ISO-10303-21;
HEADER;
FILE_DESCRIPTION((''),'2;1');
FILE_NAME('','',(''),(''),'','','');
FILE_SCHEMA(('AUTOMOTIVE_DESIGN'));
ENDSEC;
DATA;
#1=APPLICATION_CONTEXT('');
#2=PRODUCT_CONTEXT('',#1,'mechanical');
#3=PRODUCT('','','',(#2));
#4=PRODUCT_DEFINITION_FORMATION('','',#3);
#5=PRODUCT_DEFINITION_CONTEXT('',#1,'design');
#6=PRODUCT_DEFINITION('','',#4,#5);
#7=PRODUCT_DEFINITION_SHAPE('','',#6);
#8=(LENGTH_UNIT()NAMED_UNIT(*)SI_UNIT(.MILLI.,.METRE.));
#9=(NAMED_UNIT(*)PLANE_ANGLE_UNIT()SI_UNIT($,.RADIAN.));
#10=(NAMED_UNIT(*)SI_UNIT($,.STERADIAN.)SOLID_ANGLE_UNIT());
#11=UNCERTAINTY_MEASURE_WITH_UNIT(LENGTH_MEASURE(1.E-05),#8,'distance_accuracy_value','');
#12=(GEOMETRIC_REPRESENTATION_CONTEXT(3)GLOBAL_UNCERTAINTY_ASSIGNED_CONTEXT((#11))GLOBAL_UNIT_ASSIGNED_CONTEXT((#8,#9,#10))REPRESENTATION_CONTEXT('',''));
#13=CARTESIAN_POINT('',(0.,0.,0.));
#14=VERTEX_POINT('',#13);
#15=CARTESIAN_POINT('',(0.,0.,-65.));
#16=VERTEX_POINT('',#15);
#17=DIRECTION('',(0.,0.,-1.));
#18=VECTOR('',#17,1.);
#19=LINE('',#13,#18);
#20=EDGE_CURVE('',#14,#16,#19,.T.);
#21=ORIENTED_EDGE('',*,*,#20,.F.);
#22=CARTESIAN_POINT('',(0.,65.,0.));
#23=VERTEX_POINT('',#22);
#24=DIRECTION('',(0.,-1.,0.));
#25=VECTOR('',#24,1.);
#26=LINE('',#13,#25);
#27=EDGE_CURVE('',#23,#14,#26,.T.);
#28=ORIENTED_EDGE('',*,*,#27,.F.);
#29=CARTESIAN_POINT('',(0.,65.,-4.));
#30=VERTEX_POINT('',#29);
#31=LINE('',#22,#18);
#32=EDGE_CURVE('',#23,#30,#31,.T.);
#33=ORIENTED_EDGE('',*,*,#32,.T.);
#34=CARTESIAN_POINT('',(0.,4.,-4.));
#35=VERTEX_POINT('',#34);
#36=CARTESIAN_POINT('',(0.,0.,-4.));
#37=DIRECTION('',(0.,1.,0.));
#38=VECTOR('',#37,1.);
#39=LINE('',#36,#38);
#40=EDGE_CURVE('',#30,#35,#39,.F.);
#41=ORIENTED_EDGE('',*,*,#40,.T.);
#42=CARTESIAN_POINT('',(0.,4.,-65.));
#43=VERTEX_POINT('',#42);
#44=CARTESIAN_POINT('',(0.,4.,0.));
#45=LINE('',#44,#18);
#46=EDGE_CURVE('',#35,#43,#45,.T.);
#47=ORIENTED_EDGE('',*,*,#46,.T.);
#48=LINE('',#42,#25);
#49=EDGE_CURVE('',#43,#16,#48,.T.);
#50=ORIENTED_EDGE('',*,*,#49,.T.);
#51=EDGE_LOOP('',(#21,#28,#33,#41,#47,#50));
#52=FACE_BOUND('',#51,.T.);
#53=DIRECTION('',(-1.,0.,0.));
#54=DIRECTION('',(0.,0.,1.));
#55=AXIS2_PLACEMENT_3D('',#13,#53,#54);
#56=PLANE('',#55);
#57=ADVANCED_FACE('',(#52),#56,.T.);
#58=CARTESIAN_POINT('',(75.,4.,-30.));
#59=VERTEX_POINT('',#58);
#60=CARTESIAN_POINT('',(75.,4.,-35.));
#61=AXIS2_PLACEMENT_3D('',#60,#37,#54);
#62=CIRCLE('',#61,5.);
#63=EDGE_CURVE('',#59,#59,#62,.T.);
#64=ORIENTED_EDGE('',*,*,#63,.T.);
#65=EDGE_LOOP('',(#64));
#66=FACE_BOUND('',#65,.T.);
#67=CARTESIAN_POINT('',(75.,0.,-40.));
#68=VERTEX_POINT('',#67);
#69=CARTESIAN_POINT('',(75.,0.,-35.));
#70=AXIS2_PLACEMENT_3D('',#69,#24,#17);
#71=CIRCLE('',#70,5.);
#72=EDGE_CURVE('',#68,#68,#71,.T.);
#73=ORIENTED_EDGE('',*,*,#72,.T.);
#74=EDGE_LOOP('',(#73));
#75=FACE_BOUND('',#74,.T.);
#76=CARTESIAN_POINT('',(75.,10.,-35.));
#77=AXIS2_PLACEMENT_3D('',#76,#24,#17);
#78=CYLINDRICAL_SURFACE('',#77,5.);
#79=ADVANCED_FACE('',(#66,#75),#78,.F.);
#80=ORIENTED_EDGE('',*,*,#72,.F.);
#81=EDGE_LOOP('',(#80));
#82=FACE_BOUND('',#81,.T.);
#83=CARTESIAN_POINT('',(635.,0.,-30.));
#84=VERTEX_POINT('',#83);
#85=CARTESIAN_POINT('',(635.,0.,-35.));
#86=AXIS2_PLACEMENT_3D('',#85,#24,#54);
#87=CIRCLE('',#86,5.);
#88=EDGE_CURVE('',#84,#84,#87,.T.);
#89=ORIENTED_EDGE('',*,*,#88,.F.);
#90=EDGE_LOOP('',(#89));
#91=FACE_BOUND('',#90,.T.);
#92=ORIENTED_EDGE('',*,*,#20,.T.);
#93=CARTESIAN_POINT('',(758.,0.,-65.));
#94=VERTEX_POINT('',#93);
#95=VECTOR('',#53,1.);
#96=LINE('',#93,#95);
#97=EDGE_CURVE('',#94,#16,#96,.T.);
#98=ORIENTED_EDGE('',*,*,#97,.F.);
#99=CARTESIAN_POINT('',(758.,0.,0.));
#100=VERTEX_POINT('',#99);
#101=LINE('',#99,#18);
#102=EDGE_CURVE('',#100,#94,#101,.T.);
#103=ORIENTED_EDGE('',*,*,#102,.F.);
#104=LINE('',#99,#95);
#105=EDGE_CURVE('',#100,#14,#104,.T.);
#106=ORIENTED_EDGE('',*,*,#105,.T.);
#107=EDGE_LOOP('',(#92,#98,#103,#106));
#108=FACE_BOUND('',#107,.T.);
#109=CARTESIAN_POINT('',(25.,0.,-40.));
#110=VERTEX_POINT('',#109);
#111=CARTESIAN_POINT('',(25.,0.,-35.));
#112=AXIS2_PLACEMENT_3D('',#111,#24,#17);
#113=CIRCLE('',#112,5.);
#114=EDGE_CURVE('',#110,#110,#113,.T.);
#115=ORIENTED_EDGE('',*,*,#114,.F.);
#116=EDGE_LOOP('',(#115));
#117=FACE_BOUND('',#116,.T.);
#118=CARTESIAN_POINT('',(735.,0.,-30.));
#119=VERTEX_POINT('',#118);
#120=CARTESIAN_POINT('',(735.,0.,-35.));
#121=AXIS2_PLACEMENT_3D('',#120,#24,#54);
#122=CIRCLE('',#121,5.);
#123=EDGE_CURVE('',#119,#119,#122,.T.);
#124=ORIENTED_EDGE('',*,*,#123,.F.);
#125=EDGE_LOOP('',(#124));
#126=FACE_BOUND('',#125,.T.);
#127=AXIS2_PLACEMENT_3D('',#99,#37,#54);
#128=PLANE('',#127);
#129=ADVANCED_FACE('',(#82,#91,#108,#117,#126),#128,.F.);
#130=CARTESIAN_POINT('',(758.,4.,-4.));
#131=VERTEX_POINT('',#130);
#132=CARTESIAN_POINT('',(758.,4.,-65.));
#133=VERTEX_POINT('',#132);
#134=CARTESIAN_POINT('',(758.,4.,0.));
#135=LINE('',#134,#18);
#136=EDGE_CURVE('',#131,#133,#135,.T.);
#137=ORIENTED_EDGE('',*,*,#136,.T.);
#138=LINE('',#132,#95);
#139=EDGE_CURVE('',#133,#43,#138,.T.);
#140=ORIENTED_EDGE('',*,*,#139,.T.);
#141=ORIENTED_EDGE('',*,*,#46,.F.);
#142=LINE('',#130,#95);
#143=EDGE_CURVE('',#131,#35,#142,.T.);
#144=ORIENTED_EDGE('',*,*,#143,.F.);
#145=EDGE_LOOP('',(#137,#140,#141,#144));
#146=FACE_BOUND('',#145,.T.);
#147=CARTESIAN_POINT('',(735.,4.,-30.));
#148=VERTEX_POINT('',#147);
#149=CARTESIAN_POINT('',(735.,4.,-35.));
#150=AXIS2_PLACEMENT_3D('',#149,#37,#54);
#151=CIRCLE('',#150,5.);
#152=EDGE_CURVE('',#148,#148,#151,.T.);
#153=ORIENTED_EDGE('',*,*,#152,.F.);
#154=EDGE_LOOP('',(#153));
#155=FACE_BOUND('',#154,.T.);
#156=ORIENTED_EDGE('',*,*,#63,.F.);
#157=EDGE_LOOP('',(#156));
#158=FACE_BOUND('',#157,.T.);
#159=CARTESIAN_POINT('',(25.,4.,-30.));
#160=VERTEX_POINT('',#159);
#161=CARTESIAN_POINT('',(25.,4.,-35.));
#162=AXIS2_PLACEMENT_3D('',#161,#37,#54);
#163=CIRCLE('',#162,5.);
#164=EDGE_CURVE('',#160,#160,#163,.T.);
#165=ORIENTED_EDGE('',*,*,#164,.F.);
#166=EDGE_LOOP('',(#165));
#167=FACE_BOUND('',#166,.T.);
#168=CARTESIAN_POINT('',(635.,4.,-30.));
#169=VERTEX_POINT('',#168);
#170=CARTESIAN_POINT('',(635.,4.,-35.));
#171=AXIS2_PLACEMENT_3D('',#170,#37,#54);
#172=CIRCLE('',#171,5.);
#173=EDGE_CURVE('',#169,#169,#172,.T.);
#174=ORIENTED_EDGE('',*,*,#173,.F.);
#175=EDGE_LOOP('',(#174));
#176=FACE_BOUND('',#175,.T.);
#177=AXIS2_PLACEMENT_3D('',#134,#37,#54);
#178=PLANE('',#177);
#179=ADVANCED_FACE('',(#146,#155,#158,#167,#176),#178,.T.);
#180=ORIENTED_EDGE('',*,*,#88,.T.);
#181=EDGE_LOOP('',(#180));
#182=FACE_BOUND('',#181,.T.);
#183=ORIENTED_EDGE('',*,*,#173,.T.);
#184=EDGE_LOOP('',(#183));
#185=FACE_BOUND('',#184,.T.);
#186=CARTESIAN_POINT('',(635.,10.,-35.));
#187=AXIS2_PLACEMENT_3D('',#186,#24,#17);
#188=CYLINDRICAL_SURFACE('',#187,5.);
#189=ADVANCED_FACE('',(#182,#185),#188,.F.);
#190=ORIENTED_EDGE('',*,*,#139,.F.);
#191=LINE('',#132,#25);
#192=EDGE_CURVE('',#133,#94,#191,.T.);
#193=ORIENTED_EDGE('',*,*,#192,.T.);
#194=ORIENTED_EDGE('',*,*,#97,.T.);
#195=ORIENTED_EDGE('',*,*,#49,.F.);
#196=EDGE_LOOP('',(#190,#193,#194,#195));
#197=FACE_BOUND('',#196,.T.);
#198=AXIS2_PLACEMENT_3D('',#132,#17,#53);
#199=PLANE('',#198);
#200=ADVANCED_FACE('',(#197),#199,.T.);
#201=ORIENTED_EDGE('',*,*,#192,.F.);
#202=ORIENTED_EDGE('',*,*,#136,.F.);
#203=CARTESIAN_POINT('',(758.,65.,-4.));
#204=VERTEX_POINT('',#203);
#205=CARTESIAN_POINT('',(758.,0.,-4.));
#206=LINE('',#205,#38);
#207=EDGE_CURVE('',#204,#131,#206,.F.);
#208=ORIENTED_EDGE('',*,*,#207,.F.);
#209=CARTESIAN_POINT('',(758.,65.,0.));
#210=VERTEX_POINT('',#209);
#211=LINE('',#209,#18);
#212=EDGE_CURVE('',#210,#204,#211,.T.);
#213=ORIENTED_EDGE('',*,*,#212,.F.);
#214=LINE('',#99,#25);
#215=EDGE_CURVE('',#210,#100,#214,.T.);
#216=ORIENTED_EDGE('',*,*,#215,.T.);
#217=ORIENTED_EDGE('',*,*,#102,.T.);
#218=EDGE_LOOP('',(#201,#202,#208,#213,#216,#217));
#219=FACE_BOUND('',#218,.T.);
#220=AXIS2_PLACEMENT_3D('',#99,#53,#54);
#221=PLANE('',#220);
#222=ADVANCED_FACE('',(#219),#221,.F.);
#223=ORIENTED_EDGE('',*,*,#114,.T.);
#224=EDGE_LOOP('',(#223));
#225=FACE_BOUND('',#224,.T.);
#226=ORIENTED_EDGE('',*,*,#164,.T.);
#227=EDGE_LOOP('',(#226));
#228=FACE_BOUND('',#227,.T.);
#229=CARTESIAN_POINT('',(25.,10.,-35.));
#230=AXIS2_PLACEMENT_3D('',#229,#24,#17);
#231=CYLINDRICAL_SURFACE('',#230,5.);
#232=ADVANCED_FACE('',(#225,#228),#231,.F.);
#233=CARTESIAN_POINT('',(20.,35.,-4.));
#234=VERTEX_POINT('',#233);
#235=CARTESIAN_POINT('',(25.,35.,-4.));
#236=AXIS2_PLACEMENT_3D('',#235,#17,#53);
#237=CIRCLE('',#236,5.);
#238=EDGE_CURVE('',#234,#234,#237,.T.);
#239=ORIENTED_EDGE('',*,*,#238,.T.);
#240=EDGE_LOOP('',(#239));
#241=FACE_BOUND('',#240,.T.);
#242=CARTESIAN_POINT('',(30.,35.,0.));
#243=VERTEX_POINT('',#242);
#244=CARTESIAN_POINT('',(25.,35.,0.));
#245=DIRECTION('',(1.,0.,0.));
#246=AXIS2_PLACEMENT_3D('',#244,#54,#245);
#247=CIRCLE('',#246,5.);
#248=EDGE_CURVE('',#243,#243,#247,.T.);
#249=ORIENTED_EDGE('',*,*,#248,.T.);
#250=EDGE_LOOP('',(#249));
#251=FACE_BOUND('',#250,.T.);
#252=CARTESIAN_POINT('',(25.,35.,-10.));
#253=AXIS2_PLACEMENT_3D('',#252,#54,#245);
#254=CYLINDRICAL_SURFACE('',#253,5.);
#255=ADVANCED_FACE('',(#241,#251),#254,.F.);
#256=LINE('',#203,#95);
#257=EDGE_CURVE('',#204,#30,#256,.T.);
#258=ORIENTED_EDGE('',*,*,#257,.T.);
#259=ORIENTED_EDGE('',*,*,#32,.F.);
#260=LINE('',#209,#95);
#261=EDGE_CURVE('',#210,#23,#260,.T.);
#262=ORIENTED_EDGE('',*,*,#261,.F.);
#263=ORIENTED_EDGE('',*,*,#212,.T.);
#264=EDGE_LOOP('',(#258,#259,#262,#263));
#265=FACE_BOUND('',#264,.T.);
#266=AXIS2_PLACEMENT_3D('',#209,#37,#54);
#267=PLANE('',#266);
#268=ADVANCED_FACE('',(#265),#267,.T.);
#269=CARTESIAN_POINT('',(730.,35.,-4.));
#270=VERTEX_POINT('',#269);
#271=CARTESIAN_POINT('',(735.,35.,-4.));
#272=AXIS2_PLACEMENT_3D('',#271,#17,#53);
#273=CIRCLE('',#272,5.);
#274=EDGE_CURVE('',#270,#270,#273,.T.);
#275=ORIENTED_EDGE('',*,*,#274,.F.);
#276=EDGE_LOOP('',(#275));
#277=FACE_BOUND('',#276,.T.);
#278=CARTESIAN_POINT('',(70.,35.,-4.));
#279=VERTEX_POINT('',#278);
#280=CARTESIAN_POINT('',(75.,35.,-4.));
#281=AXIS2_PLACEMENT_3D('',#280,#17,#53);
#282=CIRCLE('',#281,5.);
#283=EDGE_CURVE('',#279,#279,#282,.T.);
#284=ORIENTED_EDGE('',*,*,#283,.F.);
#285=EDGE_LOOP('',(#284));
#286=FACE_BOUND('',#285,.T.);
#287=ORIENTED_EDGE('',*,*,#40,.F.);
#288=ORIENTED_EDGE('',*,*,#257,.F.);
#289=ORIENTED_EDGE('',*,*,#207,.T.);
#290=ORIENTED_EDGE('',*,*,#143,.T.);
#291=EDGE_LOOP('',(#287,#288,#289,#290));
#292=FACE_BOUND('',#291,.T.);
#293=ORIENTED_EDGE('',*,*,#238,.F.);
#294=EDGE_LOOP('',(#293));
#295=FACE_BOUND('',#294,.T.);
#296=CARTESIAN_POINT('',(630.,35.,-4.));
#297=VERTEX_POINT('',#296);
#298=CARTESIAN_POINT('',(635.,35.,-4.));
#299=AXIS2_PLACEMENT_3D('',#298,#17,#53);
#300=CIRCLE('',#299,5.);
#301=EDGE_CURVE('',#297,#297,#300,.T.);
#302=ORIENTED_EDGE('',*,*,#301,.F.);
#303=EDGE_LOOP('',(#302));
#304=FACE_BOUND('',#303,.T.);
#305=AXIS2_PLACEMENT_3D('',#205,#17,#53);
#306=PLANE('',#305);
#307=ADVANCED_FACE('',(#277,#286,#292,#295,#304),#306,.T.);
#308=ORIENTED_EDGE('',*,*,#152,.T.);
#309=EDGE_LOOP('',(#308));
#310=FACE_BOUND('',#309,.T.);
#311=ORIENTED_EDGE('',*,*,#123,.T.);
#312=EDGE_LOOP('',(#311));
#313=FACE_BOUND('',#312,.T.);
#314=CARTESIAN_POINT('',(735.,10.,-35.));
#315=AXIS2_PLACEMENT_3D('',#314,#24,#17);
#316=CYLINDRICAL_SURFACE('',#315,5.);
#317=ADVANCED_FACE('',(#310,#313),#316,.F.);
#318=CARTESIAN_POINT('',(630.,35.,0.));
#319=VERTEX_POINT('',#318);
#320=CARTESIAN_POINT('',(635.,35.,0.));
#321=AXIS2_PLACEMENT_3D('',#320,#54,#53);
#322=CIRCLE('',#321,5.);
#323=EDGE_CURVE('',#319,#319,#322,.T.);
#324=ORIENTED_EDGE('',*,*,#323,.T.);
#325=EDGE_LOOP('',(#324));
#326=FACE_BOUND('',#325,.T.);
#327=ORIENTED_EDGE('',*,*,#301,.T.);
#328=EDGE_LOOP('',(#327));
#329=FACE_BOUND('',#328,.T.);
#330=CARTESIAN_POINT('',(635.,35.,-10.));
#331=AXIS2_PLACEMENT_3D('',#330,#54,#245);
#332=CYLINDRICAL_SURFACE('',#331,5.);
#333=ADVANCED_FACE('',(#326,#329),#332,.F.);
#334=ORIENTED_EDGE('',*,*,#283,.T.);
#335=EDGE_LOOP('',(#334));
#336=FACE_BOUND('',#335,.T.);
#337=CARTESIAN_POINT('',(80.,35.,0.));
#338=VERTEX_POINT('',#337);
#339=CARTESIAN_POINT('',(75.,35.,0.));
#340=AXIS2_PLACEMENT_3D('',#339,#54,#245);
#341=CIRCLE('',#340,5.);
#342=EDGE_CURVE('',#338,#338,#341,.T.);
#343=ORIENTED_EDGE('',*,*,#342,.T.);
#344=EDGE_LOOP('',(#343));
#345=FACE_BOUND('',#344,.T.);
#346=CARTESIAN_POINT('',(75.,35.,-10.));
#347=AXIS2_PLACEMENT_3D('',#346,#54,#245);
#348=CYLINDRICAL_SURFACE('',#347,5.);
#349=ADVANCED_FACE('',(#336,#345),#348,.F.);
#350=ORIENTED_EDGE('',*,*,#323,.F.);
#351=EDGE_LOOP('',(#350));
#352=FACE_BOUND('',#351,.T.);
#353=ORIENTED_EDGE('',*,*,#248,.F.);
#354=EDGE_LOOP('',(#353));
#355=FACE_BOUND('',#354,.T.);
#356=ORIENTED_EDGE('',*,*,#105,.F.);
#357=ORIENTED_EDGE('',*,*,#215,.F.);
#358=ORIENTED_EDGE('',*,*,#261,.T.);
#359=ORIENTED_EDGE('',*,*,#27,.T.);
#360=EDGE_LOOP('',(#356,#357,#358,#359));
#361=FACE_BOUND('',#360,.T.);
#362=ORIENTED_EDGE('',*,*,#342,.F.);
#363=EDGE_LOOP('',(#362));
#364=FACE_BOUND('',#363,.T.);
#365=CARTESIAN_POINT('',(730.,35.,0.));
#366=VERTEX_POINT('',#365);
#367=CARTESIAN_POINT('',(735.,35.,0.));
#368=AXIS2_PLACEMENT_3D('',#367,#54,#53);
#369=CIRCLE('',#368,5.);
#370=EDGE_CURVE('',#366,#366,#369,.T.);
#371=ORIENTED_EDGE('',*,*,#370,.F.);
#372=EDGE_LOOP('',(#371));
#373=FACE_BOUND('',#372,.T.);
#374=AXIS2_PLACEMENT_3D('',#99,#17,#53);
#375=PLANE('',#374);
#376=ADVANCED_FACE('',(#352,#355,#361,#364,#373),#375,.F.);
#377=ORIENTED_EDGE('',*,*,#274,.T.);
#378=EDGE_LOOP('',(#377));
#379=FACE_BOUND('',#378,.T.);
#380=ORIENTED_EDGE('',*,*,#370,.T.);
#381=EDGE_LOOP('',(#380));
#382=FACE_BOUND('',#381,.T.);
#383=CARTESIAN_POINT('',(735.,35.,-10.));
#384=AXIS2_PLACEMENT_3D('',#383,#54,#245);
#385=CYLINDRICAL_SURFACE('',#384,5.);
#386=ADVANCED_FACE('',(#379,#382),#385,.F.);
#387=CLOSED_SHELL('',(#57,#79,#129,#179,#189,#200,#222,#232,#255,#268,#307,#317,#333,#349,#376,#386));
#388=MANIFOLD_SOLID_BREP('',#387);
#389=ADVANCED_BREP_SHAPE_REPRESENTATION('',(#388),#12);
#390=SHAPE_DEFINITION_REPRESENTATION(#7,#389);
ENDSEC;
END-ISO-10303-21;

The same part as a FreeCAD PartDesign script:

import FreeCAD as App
import Part
import Sketcher


def add_polygon(sketch, points):
    """Adds a closed chain of lines whose ends are joined by coincident constraints."""
    first, n = sketch.GeometryCount, len(points)
    for a, b in zip(points, points[1:] + points[:1]):
        sketch.addGeometry(Part.LineSegment(App.Vector(*a, 0), App.Vector(*b, 0)), False)
    for i in range(n):
        sketch.addConstraint(Sketcher.Constraint("Coincident", first + i, 2, first + (i + 1) % n, 1))

doc = App.newDocument("Part")
body = doc.addObject("PartDesign::Body", "Body")

sketch1 = body.newObject("Sketcher::SketchObject", "Sketch")
sketch1.AttachmentSupport = (doc.getObject("YZ_Plane"), [""])
sketch1.MapMode = "FlatFace"
add_polygon(sketch1, [(0, 0), (0, -65), (4, -65), (4, -4), (65, -4), (65, 0)])
sketch1.addConstraint(Sketcher.Constraint("Vertical", 0))
sketch1.addConstraint(Sketcher.Constraint("Horizontal", 1))
sketch1.addConstraint(Sketcher.Constraint("Vertical", 2))
sketch1.addConstraint(Sketcher.Constraint("Horizontal", 3))
sketch1.addConstraint(Sketcher.Constraint("Vertical", 4))
sketch1.addConstraint(Sketcher.Constraint("Horizontal", 5))
sketch1.addConstraint(Sketcher.Constraint("Coincident", 5, 2, -1, 1))
sketch1.addConstraint(Sketcher.Constraint("Equal", 5, 0))
sketch1.addConstraint(Sketcher.Constraint("Equal", 3, 2))
sketch1.addConstraint(Sketcher.Constraint("DistanceX", 1, 1, 1, 2, 4.0))
sketch1.addConstraint(Sketcher.Constraint("DistanceX", 3, 1, 3, 2, 61.0))
pad1 = body.newObject("PartDesign::Pad", "Pad")
pad1.Profile = sketch1
pad1.Length = 758

sketch2 = body.newObject("Sketcher::SketchObject", "Sketch001")
sketch2.AttachmentSupport = (doc.getObject("XY_Plane"), [""])
sketch2.MapMode = "FlatFace"
sketch2.addGeometry(Part.Circle(App.Vector(25, 35, 0), App.Vector(0, 0, 1), 5), False)
sketch2.addGeometry(Part.Circle(App.Vector(75, 35, 0), App.Vector(0, 0, 1), 5), False)
sketch2.addGeometry(Part.Circle(App.Vector(735, 35, 0), App.Vector(0, 0, 1), 5), False)
sketch2.addGeometry(Part.Circle(App.Vector(635, 35, 0), App.Vector(0, 0, 1), 5), False)
sketch2.addConstraint(Sketcher.Constraint("Equal", 0, 1))
sketch2.addConstraint(Sketcher.Constraint("Equal", 1, 2))
sketch2.addConstraint(Sketcher.Constraint("Equal", 2, 3))
sketch2.addConstraint(Sketcher.Constraint("Horizontal", 0, 3, 1, 3))
sketch2.addConstraint(Sketcher.Constraint("Horizontal", 1, 3, 2, 3))
sketch2.addConstraint(Sketcher.Constraint("Horizontal", 2, 3, 3, 3))
sketch2.addConstraint(Sketcher.Constraint("Diameter", 0, 10.0))
sketch2.addConstraint(Sketcher.Constraint("DistanceX", -1, 1, 0, 3, 25.0))
sketch2.addConstraint(Sketcher.Constraint("DistanceY", -1, 1, 0, 3, 35.0))
sketch2.addConstraint(Sketcher.Constraint("DistanceX", -1, 1, 1, 3, 75.0))
sketch2.addConstraint(Sketcher.Constraint("DistanceX", -1, 1, 2, 3, 735.0))
sketch2.addConstraint(Sketcher.Constraint("DistanceX", -1, 1, 3, 3, 635.0))
pocket1 = body.newObject("PartDesign::Pocket", "Pocket")
pocket1.Profile = sketch2
pocket1.Length = 10

sketch3 = body.newObject("Sketcher::SketchObject", "Sketch002")
sketch3.AttachmentSupport = (doc.getObject("XZ_Plane"), [""])
sketch3.MapMode = "FlatFace"
sketch3.addGeometry(Part.Circle(App.Vector(25, -35, 0), App.Vector(0, 0, 1), 5), False)
sketch3.addGeometry(Part.Circle(App.Vector(75, -35, 0), App.Vector(0, 0, 1), 5), False)
sketch3.addGeometry(Part.Circle(App.Vector(735, -35, 0), App.Vector(0, 0, 1), 5), False)
sketch3.addGeometry(Part.Circle(App.Vector(635, -35, 0), App.Vector(0, 0, 1), 5), False)
sketch3.addConstraint(Sketcher.Constraint("Equal", 0, 1))
sketch3.addConstraint(Sketcher.Constraint("Equal", 1, 2))
sketch3.addConstraint(Sketcher.Constraint("Equal", 2, 3))
sketch3.addConstraint(Sketcher.Constraint("Horizontal", 0, 3, 1, 3))
sketch3.addConstraint(Sketcher.Constraint("Horizontal", 1, 3, 2, 3))
sketch3.addConstraint(Sketcher.Constraint("Horizontal", 2, 3, 3, 3))
sketch3.addConstraint(Sketcher.Constraint("Diameter", 0, 10.0))
sketch3.addConstraint(Sketcher.Constraint("DistanceX", -1, 1, 0, 3, 25.0))
sketch3.addConstraint(Sketcher.Constraint("DistanceY", 0, 3, -1, 1, 35.0))
sketch3.addConstraint(Sketcher.Constraint("DistanceX", -1, 1, 1, 3, 75.0))
sketch3.addConstraint(Sketcher.Constraint("DistanceX", -1, 1, 2, 3, 735.0))
sketch3.addConstraint(Sketcher.Constraint("DistanceX", -1, 1, 3, 3, 635.0))
pocket2 = body.newObject("PartDesign::Pocket", "Pocket001")
pocket2.Profile = sketch3
pocket2.Length = 10

doc.recompute()
